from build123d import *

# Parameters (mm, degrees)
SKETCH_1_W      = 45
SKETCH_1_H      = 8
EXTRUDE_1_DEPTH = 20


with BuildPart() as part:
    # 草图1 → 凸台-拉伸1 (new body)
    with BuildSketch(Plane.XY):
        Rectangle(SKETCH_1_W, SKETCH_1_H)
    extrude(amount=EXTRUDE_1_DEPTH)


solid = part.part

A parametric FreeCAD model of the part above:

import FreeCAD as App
import Part
import Sketcher
from FreeCAD import Vector
Q = App.Units.Quantity


def add_polygon(sketch, points):
    """Adds a closed chain of lines whose ends are joined by coincident constraints."""
    first, n = sketch.GeometryCount, len(points)
    for a, b in zip(points, points[1:] + points[:1]):
        sketch.addGeometry(Part.LineSegment(App.Vector(*a, 0), App.Vector(*b, 0)), False)
    for i in range(n):
        sketch.addConstraint(Sketcher.Constraint("Coincident", first + i, 2, first + (i + 1) % n, 1))

doc = App.newDocument("Part")
params = doc.addObject("Spreadsheet::Sheet", "Params")
for row, (alias, value) in enumerate([
    ("sketch1_width", "45 mm"),
    ("sketch1_height", "8 mm"),
    ("pad1_length", "20 mm"),
], start=1):
    params.set(f"A{row}", alias)
    params.set(f"B{row}", "=" + value)
    params.setAlias(f"B{row}", alias)

body = doc.addObject("PartDesign::Body", "Body")

# Sketch on XY plane
sketch1 = doc.addObject("Sketcher::SketchObject", "Sketch")
body.addObject(sketch1)
sketch1.AttachmentSupport = (doc.XY_Plane, [""])
sketch1.MapMode = "FlatFace"
add_polygon(sketch1, [(-22.5, 4), (-22.5, -4), (22.5, -4), (22.5, 4)])  # lines 0-3
sketch1.addConstraint([
    Sketcher.Constraint("Vertical", 0),
    Sketcher.Constraint("Horizontal", 1),
    Sketcher.Constraint("Vertical", 2),
    Sketcher.Constraint("Horizontal", 3),
    Sketcher.Constraint("Symmetric", 0, 2, 2, 2, -1, 1),
    Sketcher.Constraint("DistanceX", 1, 1, 1, 2, Q("45 mm")),
    Sketcher.Constraint("DistanceY", 0, 2, 0, 1, Q("8 mm")),
])
sketch1.setExpression("Constraints[9]", "Params.sketch1_width")
sketch1.setExpression("Constraints[10]", "Params.sketch1_height")
pad1 = doc.addObject("PartDesign::Pad", "Pad")
body.addObject(pad1)
pad1.Profile = sketch1
pad1.setExpression("Length", "Params.pad1_length")

doc.recompute()
